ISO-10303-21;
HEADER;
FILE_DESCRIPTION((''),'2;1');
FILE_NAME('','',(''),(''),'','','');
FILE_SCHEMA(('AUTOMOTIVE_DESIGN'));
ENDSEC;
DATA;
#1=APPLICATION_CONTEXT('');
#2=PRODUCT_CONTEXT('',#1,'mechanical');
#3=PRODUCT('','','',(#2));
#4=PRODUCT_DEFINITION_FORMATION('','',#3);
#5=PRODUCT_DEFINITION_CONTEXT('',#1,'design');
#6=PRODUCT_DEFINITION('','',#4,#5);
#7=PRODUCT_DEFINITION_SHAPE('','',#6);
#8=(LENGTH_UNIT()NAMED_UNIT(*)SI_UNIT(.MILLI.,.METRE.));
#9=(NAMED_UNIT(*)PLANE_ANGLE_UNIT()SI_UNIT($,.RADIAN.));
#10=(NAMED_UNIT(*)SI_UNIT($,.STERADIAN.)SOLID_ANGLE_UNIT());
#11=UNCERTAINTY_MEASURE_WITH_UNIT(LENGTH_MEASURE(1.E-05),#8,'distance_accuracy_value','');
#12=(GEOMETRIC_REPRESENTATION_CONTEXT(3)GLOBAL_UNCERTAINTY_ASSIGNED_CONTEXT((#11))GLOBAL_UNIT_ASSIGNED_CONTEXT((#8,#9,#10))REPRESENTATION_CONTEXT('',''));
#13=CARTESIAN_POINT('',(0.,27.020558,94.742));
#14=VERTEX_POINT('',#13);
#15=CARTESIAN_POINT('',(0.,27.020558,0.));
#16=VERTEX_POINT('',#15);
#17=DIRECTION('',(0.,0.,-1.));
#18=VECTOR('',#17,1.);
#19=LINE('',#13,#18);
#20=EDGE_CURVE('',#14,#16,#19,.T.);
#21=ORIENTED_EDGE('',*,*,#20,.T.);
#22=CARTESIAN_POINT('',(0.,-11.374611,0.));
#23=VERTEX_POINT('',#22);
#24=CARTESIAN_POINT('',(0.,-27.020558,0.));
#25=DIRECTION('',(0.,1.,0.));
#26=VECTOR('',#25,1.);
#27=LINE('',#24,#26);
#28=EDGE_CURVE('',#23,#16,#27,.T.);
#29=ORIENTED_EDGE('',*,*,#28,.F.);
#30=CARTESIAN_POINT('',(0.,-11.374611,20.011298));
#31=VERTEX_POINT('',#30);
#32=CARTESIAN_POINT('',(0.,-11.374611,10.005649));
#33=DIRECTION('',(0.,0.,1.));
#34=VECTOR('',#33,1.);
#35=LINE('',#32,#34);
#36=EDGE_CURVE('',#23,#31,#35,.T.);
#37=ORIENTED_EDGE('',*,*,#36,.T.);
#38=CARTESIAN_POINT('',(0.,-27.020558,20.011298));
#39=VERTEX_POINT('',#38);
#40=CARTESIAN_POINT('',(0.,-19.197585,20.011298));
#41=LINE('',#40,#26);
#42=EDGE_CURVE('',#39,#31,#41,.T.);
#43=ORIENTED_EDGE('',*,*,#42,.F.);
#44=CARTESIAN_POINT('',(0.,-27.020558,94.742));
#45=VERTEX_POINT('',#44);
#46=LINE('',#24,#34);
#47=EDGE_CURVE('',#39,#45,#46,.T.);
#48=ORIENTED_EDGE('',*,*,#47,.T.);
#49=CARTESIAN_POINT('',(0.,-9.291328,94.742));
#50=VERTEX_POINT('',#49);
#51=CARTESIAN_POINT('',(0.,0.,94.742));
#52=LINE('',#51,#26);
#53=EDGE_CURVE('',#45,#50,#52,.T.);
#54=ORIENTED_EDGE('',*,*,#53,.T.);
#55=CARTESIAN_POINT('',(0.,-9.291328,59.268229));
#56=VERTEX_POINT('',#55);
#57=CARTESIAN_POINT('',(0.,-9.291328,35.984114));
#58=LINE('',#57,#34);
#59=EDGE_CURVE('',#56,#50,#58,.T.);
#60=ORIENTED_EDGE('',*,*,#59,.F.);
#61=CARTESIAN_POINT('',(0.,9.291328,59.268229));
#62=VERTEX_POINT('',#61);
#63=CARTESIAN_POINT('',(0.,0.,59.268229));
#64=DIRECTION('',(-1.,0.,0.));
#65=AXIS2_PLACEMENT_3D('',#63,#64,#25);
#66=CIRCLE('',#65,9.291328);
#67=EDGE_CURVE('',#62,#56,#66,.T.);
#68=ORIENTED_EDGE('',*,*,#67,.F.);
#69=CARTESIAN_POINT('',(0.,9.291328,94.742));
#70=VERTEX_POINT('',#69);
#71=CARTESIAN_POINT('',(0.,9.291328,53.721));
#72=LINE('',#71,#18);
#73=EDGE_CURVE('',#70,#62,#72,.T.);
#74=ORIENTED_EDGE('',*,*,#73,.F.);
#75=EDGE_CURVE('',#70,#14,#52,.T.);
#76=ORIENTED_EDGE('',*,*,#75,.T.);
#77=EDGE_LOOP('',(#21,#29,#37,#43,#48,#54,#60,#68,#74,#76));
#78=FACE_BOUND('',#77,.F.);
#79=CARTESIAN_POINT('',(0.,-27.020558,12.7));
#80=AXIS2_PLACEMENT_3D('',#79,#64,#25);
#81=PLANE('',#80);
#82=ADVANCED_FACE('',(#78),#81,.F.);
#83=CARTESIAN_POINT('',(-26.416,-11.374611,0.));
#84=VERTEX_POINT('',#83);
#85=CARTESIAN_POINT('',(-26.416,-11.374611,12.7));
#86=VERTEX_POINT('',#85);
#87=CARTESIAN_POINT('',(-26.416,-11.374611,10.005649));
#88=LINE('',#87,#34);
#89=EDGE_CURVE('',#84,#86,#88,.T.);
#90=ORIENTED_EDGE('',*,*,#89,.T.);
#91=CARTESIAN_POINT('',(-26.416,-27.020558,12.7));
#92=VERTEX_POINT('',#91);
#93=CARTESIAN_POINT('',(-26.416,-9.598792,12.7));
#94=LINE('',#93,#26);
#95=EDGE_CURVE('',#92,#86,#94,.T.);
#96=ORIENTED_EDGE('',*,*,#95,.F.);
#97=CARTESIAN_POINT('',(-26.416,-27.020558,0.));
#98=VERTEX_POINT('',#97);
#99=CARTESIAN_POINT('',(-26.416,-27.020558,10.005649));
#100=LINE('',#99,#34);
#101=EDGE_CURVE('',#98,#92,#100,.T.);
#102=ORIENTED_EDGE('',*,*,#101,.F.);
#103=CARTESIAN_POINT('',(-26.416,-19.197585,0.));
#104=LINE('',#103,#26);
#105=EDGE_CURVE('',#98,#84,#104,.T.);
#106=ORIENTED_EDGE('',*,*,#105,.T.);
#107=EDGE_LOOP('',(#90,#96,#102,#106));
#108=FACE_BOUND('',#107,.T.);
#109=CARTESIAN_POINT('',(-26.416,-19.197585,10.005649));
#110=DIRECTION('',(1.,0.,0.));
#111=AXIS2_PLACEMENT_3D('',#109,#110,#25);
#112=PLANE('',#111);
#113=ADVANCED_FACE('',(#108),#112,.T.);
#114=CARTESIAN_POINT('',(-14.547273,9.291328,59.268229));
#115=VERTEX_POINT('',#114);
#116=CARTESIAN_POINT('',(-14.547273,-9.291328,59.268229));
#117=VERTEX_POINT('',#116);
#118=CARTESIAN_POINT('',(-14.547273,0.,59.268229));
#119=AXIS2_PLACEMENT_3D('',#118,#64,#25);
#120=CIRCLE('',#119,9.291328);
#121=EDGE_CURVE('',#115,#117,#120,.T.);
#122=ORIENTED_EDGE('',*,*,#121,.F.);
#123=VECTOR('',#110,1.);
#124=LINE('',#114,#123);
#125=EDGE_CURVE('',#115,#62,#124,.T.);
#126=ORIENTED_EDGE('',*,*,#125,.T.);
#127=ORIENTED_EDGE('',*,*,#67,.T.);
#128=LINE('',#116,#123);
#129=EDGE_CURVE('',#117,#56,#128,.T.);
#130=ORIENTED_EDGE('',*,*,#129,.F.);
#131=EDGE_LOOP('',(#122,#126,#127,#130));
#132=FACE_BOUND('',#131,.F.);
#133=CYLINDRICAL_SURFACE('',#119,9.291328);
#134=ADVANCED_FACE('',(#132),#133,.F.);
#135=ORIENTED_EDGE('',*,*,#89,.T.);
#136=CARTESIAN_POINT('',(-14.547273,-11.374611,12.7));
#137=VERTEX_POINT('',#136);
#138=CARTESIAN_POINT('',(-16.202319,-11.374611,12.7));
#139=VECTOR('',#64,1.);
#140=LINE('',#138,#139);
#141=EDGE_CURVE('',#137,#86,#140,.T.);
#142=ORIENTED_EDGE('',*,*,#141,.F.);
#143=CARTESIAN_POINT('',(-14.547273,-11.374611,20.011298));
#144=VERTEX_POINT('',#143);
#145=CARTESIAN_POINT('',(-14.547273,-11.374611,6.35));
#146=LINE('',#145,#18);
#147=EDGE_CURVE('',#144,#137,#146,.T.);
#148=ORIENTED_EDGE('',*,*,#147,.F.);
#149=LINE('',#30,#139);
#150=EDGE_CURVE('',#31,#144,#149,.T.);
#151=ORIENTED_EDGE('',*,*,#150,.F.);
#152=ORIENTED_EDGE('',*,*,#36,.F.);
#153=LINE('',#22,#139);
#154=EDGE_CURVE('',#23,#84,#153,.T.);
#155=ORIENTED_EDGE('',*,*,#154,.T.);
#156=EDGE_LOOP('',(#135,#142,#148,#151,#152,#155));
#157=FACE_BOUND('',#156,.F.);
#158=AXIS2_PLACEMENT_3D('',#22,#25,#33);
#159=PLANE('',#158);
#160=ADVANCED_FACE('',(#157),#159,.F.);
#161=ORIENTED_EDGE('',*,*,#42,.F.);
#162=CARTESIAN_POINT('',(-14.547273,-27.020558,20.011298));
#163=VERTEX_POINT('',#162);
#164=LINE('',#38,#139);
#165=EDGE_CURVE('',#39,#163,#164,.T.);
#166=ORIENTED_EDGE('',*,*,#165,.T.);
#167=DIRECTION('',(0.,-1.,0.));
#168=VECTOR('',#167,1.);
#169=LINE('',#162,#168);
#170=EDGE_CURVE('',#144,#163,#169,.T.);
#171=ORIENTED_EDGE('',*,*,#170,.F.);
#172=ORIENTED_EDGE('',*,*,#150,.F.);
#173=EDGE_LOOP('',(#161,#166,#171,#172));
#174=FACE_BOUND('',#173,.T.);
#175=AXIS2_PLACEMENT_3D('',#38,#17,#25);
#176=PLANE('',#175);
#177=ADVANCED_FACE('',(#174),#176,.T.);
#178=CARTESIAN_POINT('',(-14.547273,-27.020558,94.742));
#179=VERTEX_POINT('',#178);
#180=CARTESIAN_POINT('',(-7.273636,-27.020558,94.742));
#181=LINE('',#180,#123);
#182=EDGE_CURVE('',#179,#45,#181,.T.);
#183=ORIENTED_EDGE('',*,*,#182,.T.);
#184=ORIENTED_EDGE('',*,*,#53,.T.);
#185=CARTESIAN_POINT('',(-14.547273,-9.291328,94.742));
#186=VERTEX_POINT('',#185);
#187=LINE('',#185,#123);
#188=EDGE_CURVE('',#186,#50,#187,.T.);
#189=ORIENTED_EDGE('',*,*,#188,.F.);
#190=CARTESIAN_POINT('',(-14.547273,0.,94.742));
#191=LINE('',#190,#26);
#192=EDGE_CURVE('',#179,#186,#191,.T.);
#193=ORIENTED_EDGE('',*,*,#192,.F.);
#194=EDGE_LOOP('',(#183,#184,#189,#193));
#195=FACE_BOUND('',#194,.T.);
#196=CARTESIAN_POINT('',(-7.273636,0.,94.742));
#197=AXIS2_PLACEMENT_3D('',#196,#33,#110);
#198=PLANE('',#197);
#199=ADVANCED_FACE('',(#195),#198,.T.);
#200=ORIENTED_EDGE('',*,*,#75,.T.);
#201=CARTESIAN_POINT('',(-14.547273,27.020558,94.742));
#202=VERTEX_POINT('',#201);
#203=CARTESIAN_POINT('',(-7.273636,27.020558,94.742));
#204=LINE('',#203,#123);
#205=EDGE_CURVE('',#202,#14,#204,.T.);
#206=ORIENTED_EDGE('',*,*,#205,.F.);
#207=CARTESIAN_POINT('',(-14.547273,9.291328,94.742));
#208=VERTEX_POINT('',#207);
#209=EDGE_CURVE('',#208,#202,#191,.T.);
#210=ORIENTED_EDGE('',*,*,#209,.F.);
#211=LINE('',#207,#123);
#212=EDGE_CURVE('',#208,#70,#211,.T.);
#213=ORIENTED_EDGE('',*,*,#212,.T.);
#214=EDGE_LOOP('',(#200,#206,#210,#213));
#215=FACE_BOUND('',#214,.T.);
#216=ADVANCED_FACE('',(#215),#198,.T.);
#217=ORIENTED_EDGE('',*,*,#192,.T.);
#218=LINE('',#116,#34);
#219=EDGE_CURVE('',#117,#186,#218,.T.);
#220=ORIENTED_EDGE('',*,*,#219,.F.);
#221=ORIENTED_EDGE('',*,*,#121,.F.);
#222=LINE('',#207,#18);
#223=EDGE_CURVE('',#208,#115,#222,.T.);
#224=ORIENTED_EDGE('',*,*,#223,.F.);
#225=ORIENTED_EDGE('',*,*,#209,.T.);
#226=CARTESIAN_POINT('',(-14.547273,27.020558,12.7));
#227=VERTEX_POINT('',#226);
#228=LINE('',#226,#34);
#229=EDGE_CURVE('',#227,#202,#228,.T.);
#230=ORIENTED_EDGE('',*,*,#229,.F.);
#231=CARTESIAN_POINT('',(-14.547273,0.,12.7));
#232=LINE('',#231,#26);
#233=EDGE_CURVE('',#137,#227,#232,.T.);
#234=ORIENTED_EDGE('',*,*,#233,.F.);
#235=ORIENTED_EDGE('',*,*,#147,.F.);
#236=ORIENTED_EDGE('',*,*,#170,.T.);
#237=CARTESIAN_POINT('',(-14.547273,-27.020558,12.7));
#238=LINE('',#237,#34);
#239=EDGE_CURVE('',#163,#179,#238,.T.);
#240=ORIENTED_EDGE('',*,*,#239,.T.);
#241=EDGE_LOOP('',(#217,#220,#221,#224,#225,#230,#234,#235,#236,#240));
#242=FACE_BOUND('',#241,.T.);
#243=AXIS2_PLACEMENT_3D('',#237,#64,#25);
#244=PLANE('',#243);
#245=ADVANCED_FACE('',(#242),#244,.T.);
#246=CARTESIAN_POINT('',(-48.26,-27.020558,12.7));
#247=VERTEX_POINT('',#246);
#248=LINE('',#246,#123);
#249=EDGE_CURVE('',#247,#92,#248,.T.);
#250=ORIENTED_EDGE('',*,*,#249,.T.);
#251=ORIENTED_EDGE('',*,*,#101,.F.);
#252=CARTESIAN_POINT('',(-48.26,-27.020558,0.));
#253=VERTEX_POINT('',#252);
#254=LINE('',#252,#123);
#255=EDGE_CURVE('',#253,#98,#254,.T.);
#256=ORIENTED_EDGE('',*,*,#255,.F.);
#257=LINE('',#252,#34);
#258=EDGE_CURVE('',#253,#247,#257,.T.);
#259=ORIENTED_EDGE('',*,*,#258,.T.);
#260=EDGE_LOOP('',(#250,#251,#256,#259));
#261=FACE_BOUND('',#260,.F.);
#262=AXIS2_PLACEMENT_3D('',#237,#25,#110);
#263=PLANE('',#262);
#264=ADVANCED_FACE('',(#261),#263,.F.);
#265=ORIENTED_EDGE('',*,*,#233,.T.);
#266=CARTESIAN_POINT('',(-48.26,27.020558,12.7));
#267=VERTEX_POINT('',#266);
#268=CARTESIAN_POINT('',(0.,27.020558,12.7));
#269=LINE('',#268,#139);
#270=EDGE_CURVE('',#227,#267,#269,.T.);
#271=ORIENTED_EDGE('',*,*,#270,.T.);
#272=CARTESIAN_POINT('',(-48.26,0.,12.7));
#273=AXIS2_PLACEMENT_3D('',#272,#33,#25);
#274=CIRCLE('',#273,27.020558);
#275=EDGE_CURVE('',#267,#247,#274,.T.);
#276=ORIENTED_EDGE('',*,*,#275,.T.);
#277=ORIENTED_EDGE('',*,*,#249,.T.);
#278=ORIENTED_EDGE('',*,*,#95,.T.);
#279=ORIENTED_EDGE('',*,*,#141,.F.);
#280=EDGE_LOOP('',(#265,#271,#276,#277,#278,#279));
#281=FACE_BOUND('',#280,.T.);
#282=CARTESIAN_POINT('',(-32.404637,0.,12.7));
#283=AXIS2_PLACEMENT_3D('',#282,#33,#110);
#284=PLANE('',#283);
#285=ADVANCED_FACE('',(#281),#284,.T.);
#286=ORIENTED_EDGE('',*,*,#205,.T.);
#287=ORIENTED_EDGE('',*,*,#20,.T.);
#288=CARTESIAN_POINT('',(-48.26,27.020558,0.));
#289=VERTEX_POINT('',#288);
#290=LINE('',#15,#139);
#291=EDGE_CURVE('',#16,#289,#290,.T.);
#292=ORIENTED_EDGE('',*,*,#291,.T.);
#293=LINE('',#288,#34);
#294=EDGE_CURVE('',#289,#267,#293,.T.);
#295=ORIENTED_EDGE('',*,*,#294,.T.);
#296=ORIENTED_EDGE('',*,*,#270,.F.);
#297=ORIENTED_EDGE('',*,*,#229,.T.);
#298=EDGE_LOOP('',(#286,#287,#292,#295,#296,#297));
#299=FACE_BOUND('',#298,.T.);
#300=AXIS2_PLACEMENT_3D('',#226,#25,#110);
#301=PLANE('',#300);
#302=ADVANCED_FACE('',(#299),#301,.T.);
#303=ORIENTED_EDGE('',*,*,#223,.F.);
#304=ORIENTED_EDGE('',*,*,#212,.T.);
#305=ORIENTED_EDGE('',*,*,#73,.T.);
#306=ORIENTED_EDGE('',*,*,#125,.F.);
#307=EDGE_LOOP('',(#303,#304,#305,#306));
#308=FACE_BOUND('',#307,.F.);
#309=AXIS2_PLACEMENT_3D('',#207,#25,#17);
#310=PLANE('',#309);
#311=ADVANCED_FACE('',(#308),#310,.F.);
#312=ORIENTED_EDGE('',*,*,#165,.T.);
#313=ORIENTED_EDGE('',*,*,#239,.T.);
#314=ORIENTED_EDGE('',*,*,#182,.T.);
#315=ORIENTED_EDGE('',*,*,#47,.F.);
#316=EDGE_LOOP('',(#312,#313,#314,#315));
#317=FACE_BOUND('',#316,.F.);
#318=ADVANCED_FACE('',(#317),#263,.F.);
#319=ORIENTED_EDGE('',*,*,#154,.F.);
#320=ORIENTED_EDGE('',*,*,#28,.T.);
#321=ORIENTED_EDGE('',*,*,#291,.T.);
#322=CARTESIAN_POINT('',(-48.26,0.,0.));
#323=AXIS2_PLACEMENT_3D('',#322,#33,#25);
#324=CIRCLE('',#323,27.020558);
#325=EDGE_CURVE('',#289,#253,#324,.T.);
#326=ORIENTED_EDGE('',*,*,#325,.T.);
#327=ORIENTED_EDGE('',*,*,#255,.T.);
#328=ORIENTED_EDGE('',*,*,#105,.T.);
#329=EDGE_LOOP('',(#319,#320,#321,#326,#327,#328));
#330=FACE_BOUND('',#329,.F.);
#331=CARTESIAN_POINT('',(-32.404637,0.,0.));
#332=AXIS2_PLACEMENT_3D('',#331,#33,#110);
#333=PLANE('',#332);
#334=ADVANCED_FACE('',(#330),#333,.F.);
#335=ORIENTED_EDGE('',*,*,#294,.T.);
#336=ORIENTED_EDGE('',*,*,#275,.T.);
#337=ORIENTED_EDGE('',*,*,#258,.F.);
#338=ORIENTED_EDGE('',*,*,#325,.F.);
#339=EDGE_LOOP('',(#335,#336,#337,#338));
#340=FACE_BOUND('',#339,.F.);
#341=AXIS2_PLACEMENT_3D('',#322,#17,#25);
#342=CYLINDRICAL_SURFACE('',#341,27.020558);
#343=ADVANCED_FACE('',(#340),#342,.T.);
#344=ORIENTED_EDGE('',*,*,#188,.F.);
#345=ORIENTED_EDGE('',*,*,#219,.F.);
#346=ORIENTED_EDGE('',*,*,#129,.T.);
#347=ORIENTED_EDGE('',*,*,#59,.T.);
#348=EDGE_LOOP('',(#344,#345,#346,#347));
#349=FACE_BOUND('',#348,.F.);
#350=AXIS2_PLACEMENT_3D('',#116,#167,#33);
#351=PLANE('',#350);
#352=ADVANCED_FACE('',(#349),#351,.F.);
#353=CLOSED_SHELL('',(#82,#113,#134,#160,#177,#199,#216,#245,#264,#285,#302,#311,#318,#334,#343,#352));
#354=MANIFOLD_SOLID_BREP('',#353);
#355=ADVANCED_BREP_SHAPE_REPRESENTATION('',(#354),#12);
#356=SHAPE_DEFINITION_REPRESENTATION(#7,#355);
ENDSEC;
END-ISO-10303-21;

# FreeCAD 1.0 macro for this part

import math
import FreeCAD as App
import Part
import Sketcher
from FreeCAD import Vector
Q = App.Units.Quantity


def add_polygon(sketch, points):
    """Adds a closed chain of lines whose ends are joined by coincident constraints."""
    first, n = sketch.GeometryCount, len(points)
    for a, b in zip(points, points[1:] + points[:1]):
        sketch.addGeometry(Part.LineSegment(App.Vector(*a, 0), App.Vector(*b, 0)), False)
    for i in range(n):
        sketch.addConstraint(Sketcher.Constraint("Coincident", first + i, 2, first + (i + 1) % n, 1))

doc = App.newDocument("Part")
body = doc.addObject("PartDesign::Body", "Body")

sketch1 = body.newObject("Sketcher::SketchObject", "Sketch")
sketch1.AttachmentSupport = (doc.getObject("XY_Plane"), [""])
sketch1.MapMode = "FlatFace"
sketch1.addGeometry(Part.LineSegment(Vector(0, 27, 0), Vector(-48, 27, 0)), False)
sketch1.addGeometry(Part.ArcOfCircle(Part.Circle(Vector(-48, 0, 0), Vector(0, 0, 1), 27), math.radians(90), math.radians(270)), False)
sketch1.addGeometry(Part.LineSegment(Vector(-48, -27, 0), Vector(0, -27, 0)), False)
sketch1.addGeometry(Part.LineSegment(Vector(0, -27, 0), Vector(0, 27, 0)), False)
sketch1.addConstraint(Sketcher.Constraint("Tangent", 0, 2, 1, 1))
sketch1.addConstraint(Sketcher.Constraint("Tangent", 1, 2, 2, 1))
sketch1.addConstraint(Sketcher.Constraint("Coincident", 2, 2, 3, 1))
sketch1.addConstraint(Sketcher.Constraint("Coincident", 3, 2, 0, 1))
sketch1.addConstraint(Sketcher.Constraint("Horizontal", 0))
sketch1.addConstraint(Sketcher.Constraint("Horizontal", 2))
sketch1.addConstraint(Sketcher.Constraint("Vertical", 3))
sketch1.addConstraint(Sketcher.Constraint("Symmetric", 2, 2, 3, 2, -1, 1))
sketch1.addConstraint(Sketcher.Constraint("DistanceX", 0, 2, 0, 1, Q("1.9 in")))
sketch1.addConstraint(Sketcher.Constraint("Radius", 1, Q("27.020558 mm")))
pad1 = body.newObject("PartDesign::Pad", "Pad")
pad1.Profile = sketch1
pad1.Length = Q("0.5 in")

sketch2 = body.newObject("Sketcher::SketchObject", "Sketch001")
sketch2.AttachmentSupport = (doc.getObject("XY_Plane"), [""])
sketch2.MapMode = "FlatFace"
sketch2.AttachmentOffset = App.Placement(Vector(0, 0, 0.5 * 25.4), App.Rotation())
add_polygon(sketch2, [(-15, 27), (-15, -27), (0, -27), (0, 27)])
sketch2.addConstraint(Sketcher.Constraint("Vertical", 0))
sketch2.addConstraint(Sketcher.Constraint("Horizontal", 1))
sketch2.addConstraint(Sketcher.Constraint("Vertical", 2))
sketch2.addConstraint(Sketcher.Constraint("Horizontal", 3))
sketch2.addConstraint(Sketcher.Constraint("Symmetric", 1, 2, 2, 2, -1, 1))
sketch2.addConstraint(Sketcher.Constraint("DistanceX", 1, 1, 1, 2, Q("14.547273 mm")))
sketch2.addConstraint(Sketcher.Constraint("DistanceY", 0, 2, 0, 1, Q("54.041116 mm")))
pad2 = body.newObject("PartDesign::Pad", "Pad001")
pad2.Profile = sketch2
pad2.Length = Q("3.23 in")

sketch3 = body.newObject("Sketcher::SketchObject", "Sketch002")
sketch3.AttachmentSupport = (doc.getObject("YZ_Plane"), [""])
sketch3.MapMode = "FlatFace"
sketch3.AttachmentOffset = App.Placement(Vector(0, 0, -14.547273), App.Rotation())
sketch3.addGeometry(Part.LineSegment(Vector(9, 95, 0), Vector(9, 59, 0)), False)
sketch3.addGeometry(Part.ArcOfCircle(Part.Circle(Vector(0, 59, 0), Vector(0, 0, 1), 9), math.radians(180), math.radians(360)), False)
sketch3.addGeometry(Part.LineSegment(Vector(-9, 59, 0), Vector(-9, 95, 0)), False)
sketch3.addGeometry(Part.LineSegment(Vector(-9, 95, 0), Vector(9, 95, 0)), False)
sketch3.addConstraint(Sketcher.Constraint("Tangent", 0, 2, 1, 2))
sketch3.addConstraint(Sketcher.Constraint("Tangent", 1, 1, 2, 1))
sketch3.addConstraint(Sketcher.Constraint("Coincident", 2, 2, 3, 1))
sketch3.addConstraint(Sketcher.Constraint("Coincident", 3, 2, 0, 1))
sketch3.addConstraint(Sketcher.Constraint("Vertical", 0))
sketch3.addConstraint(Sketcher.Constraint("Vertical", 2))
sketch3.addConstraint(Sketcher.Constraint("Horizontal", 3))
sketch3.addConstraint(Sketcher.Constraint("PointOnObject", 1, 3, -2))
sketch3.addConstraint(Sketcher.Constraint("DistanceY", -1, 1, 2, 2, Q("3.73 in")))
sketch3.addConstraint(Sketcher.Constraint("Radius", 1, Q("9.291328 mm")))
sketch3.addConstraint(Sketcher.Constraint("DistanceY", 0, 2, 0, 1, Q("35.473771 mm")))
pocket1 = body.newObject("PartDesign::Pocket", "Pocket")
pocket1.Profile = sketch3
pocket1.Length = Q("1 in")
pocket1.Reversed = True

sketch4 = body.newObject("Sketcher::SketchObject", "Sketch003")
sketch4.AttachmentSupport = (doc.getObject("YZ_Plane"), [""])
sketch4.MapMode = "FlatFace"
add_polygon(sketch4, [(-27, 20), (-27, 0), (-11, 0), (-11, 20)])
sketch4.addConstraint(Sketcher.Constraint("Vertical", 0))
sketch4.addConstraint(Sketcher.Constraint("Horizontal", 1))
sketch4.addConstraint(Sketcher.Constraint("Vertical", 2))
sketch4.addConstraint(Sketcher.Constraint("Horizontal", 3))
sketch4.addConstraint(Sketcher.Constraint("PointOnObject", 0, 2, -1))
sketch4.addConstraint(Sketcher.Constraint("DistanceY", 0, 2, 0, 1, Q("20.011298 mm")))
sketch4.addConstraint(Sketcher.Constraint("DistanceX", 1, 1, 1, 2, Q("15.645946 mm")))
sketch4.addConstraint(Sketcher.Constraint("DistanceX", 1, 2, -1, 1, Q("11.374611 mm")))
pocket2 = body.newObject("PartDesign::Pocket", "Pocket001")
pocket2.Profile = sketch4
pocket2.Length = Q("1.04 in")

doc.recompute()
